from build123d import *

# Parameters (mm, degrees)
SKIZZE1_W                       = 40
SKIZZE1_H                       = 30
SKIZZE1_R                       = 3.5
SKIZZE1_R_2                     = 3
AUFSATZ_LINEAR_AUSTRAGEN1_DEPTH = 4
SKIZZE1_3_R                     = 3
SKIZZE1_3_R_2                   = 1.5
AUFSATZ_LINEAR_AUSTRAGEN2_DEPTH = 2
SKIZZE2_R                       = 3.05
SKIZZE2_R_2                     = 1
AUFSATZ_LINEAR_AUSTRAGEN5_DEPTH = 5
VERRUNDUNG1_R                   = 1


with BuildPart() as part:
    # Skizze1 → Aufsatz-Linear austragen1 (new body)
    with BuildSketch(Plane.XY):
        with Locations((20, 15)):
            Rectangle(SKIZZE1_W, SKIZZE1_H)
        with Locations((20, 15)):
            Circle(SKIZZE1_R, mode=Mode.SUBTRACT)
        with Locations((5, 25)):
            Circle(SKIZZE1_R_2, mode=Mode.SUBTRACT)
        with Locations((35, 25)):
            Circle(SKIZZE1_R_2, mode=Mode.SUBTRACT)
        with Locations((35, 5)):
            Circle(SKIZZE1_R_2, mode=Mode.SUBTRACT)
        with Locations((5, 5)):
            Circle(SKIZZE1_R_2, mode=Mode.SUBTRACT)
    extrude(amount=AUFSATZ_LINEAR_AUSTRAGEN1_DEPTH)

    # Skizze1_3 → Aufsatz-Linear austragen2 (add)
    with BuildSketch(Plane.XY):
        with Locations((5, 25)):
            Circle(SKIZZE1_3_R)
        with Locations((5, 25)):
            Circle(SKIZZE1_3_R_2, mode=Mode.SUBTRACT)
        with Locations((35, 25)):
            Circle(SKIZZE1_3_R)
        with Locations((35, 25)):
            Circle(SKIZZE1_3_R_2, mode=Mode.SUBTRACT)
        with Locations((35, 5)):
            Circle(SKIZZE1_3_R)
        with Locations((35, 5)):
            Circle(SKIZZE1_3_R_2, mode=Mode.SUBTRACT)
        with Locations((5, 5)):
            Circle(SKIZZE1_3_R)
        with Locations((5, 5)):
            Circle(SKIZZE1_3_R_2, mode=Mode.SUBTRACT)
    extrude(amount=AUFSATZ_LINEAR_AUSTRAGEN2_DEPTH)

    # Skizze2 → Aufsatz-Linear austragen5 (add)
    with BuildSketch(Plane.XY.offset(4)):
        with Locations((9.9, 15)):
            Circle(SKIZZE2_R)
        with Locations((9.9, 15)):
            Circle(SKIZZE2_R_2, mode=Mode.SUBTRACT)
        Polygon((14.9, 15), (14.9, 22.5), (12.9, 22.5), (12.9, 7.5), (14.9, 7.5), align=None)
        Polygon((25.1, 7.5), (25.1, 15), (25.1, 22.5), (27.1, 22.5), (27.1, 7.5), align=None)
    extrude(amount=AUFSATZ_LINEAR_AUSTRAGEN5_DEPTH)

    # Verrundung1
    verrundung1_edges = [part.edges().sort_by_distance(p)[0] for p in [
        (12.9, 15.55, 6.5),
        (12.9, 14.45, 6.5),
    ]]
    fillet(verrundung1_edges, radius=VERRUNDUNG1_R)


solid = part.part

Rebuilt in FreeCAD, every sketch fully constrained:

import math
import FreeCAD as App
import Part
import Sketcher


def edges_at(feature, points):
    """Names of the edges that pass closest to the given points."""
    edges = feature.Shape.Edges
    near = lambda p: min(range(len(edges)), key=lambda i: edges[i].distToShape(Part.Vertex(*p))[0])
    return sorted({f"Edge{near(p) + 1}" for p in points})

doc = App.newDocument("Part")
body = doc.addObject("PartDesign::Body", "Body")

# Sketch on XY plane
sketch1 = body.newObject("Sketcher::SketchObject", "Sketch")
sketch1.AttachmentSupport = (doc.getObject("XY_Plane"), [""])
sketch1.MapMode = "FlatFace"
sketch1.addGeometry(Part.LineSegment(App.Vector(0, 30, 0), App.Vector(0, 0, 0)), False)
sketch1.addGeometry(Part.LineSegment(App.Vector(0, 0, 0), App.Vector(40, 0, 0)), False)
sketch1.addGeometry(Part.LineSegment(App.Vector(40, 0, 0), App.Vector(40, 30, 0)), False)
sketch1.addGeometry(Part.LineSegment(App.Vector(40, 30, 0), App.Vector(0, 30, 0)), False)
sketch1.addGeometry(Part.Circle(App.Vector(5, 5, 0), App.Vector(0, 0, 1), 3), False)
sketch1.addGeometry(Part.Circle(App.Vector(35, 5, 0), App.Vector(0, 0, 1), 3), False)
sketch1.addGeometry(Part.Circle(App.Vector(5, 25, 0), App.Vector(0, 0, 1), 3), False)
sketch1.addGeometry(Part.Circle(App.Vector(20, 15, 0), App.Vector(0, 0, 1), 3.5), False)
sketch1.addGeometry(Part.Circle(App.Vector(35, 25, 0), App.Vector(0, 0, 1), 3), False)
sketch1.addConstraint(Sketcher.Constraint("Coincident", 0, 2, 1, 1))
sketch1.addConstraint(Sketcher.Constraint("Coincident", 1, 2, 2, 1))
sketch1.addConstraint(Sketcher.Constraint("Coincident", 2, 2, 3, 1))
sketch1.addConstraint(Sketcher.Constraint("Coincident", 3, 2, 0, 1))
sketch1.addConstraint(Sketcher.Constraint("Vertical", 0))
sketch1.addConstraint(Sketcher.Constraint("Horizontal", 1))
sketch1.addConstraint(Sketcher.Constraint("Vertical", 2))
sketch1.addConstraint(Sketcher.Constraint("Horizontal", 3))
sketch1.addConstraint(Sketcher.Constraint("Coincident", 0, 2, -1, 1))
sketch1.addConstraint(Sketcher.Constraint("Equal", 4, 5))
sketch1.addConstraint(Sketcher.Constraint("Equal", 5, 6))
sketch1.addConstraint(Sketcher.Constraint("Equal", 6, 8))
sketch1.addConstraint(Sketcher.Constraint("Horizontal", 4, 3, 5, 3))
sketch1.addConstraint(Sketcher.Constraint("Horizontal", 6, 3, 8, 3))
sketch1.addConstraint(Sketcher.Constraint("Vertical", 4, 3, 6, 3))
sketch1.addConstraint(Sketcher.Constraint("Vertical", 5, 3, 8, 3))
sketch1.addConstraint(Sketcher.Constraint("Diameter", 4, 6.0))
sketch1.addConstraint(Sketcher.Constraint("Diameter", 7, 7.0))
sketch1.addConstraint(Sketcher.Constraint("DistanceX", 1, 1, 1, 2, 40.0))
sketch1.addConstraint(Sketcher.Constraint("DistanceY", 0, 2, 0, 1, 30.0))
sketch1.addConstraint(Sketcher.Constraint("DistanceX", -1, 1, 4, 3, 5.0))
sketch1.addConstraint(Sketcher.Constraint("DistanceY", -1, 1, 4, 3, 5.0))
sketch1.addConstraint(Sketcher.Constraint("DistanceX", -1, 1, 5, 3, 35.0))
sketch1.addConstraint(Sketcher.Constraint("DistanceY", -1, 1, 6, 3, 25.0))
sketch1.addConstraint(Sketcher.Constraint("DistanceX", -1, 1, 7, 3, 20.0))
sketch1.addConstraint(Sketcher.Constraint("DistanceY", -1, 1, 7, 3, 15.0))
pad1 = body.newObject("PartDesign::Pad", "Pad")
pad1.Profile = sketch1
pad1.Length = 4

# Sketch on XY plane
sketch2 = body.newObject("Sketcher::SketchObject", "Sketch001")
sketch2.AttachmentSupport = (doc.getObject("XY_Plane"), [""])
sketch2.MapMode = "FlatFace"
sketch2.addGeometry(Part.Circle(App.Vector(5, 25, 0), App.Vector(0, 0, 1), 3), False)
sketch2.addGeometry(Part.Circle(App.Vector(5, 25, 0), App.Vector(0, 0, 1), 1.5), False)
sketch2.addGeometry(Part.Circle(App.Vector(35, 25, 0), App.Vector(0, 0, 1), 3), False)
sketch2.addGeometry(Part.Circle(App.Vector(35, 25, 0), App.Vector(0, 0, 1), 1.5), False)
sketch2.addGeometry(Part.Circle(App.Vector(35, 5, 0), App.Vector(0, 0, 1), 3), False)
sketch2.addGeometry(Part.Circle(App.Vector(35, 5, 0), App.Vector(0, 0, 1), 1.5), False)
sketch2.addGeometry(Part.Circle(App.Vector(5, 5, 0), App.Vector(0, 0, 1), 3), False)
sketch2.addGeometry(Part.Circle(App.Vector(5, 5, 0), App.Vector(0, 0, 1), 1.5), False)
sketch2.addConstraint(Sketcher.Constraint("Coincident", 1, 3, 0, 3))
sketch2.addConstraint(Sketcher.Constraint("Coincident", 3, 3, 2, 3))
sketch2.addConstraint(Sketcher.Constraint("Coincident", 5, 3, 4, 3))
sketch2.addConstraint(Sketcher.Constraint("Coincident", 7, 3, 6, 3))
sketch2.addConstraint(Sketcher.Constraint("Equal", 0, 2))
sketch2.addConstraint(Sketcher.Constraint("Equal", 1, 3))
sketch2.addConstraint(Sketcher.Constraint("Equal", 2, 4))
sketch2.addConstraint(Sketcher.Constraint("Equal", 3, 5))
sketch2.addConstraint(Sketcher.Constraint("Equal", 4, 6))
sketch2.addConstraint(Sketcher.Constraint("Equal", 5, 7))
sketch2.addConstraint(Sketcher.Constraint("Horizontal", 1, 3, 2, 3))
sketch2.addConstraint(Sketcher.Constraint("Horizontal", 5, 3, 6, 3))
sketch2.addConstraint(Sketcher.Constraint("Vertical", 3, 3, 4, 3))
sketch2.addConstraint(Sketcher.Constraint("Vertical", 1, 3, 6, 3))
sketch2.addConstraint(Sketcher.Constraint("Diameter", 0, 6.0))
sketch2.addConstraint(Sketcher.Constraint("Diameter", 1, 3.0))
sketch2.addConstraint(Sketcher.Constraint("DistanceX", -1, 1, 0, 3, 5.0))
sketch2.addConstraint(Sketcher.Constraint("DistanceY", -1, 1, 0, 3, 25.0))
sketch2.addConstraint(Sketcher.Constraint("DistanceX", -1, 1, 2, 3, 35.0))
sketch2.addConstraint(Sketcher.Constraint("DistanceY", -1, 1, 4, 3, 5.0))
pad2 = body.newObject("PartDesign::Pad", "Pad001")
pad2.Profile = sketch2
pad2.Length = 2

# Sketch on XY plane
sketch3 = body.newObject("Sketcher::SketchObject", "Sketch002")
sketch3.AttachmentSupport = (doc.getObject("XY_Plane"), [""])
sketch3.MapMode = "FlatFace"
sketch3.AttachmentOffset = App.Placement(App.Vector(0, 0, 4), App.Rotation())
sketch3.addGeometry(Part.LineSegment(App.Vector(14.9, 7.5, 0), App.Vector(14.9, 22.5, 0)), False)
sketch3.addGeometry(Part.LineSegment(App.Vector(14.9, 22.5, 0), App.Vector(12.9, 22.5, 0)), False)
sketch3.addGeometry(Part.LineSegment(App.Vector(12.9, 22.5, 0), App.Vector(12.9, 15.6, 0)), False)
sketch3.addGeometry(Part.ArcOfCircle(Part.Circle(App.Vector(9.9, 15, 0), App.Vector(0, 0, 1), 3), math.radians(10), math.radians(350)), False)
sketch3.addGeometry(Part.LineSegment(App.Vector(12.9, 14.4, 0), App.Vector(12.9, 7.5, 0)), False)
sketch3.addGeometry(Part.LineSegment(App.Vector(12.9, 7.5, 0), App.Vector(14.9, 7.5, 0)), False)
sketch3.addGeometry(Part.Circle(App.Vector(9.9, 15, 0), App.Vector(0, 0, 1), 1), False)
sketch3.addGeometry(Part.LineSegment(App.Vector(25.1, 22.5, 0), App.Vector(25.1, 7.5, 0)), False)
sketch3.addGeometry(Part.LineSegment(App.Vector(25.1, 7.5, 0), App.Vector(27.1, 7.5, 0)), False)
sketch3.addGeometry(Part.LineSegment(App.Vector(27.1, 7.5, 0), App.Vector(27.1, 22.5, 0)), False)
sketch3.addGeometry(Part.LineSegment(App.Vector(27.1, 22.5, 0), App.Vector(25.1, 22.5, 0)), False)
sketch3.addConstraint(Sketcher.Constraint("Coincident", 0, 2, 1, 1))
sketch3.addConstraint(Sketcher.Constraint("Coincident", 1, 2, 2, 1))
sketch3.addConstraint(Sketcher.Constraint("Coincident", 2, 2, 3, 1))
sketch3.addConstraint(Sketcher.Constraint("Coincident", 3, 2, 4, 1))
sketch3.addConstraint(Sketcher.Constraint("Coincident", 4, 2, 5, 1))
sketch3.addConstraint(Sketcher.Constraint("Coincident", 5, 2, 0, 1))
sketch3.addConstraint(Sketcher.Constraint("Coincident", 7, 2, 8, 1))
sketch3.addConstraint(Sketcher.Constraint("Coincident", 8, 2, 9, 1))
sketch3.addConstraint(Sketcher.Constraint("Coincident", 9, 2, 10, 1))
sketch3.addConstraint(Sketcher.Constraint("Coincident", 10, 2, 7, 1))
sketch3.addConstraint(Sketcher.Constraint("Vertical", 0))
sketch3.addConstraint(Sketcher.Constraint("Horizontal", 1))
sketch3.addConstraint(Sketcher.Constraint("Vertical", 2))
sketch3.addConstraint(Sketcher.Constraint("Vertical", 4))
sketch3.addConstraint(Sketcher.Constraint("Horizontal", 5))
sketch3.addConstraint(Sketcher.Constraint("Vertical", 7))
sketch3.addConstraint(Sketcher.Constraint("Horizontal", 8))
sketch3.addConstraint(Sketcher.Constraint("Vertical", 9))
sketch3.addConstraint(Sketcher.Constraint("Horizontal", 10))
sketch3.addConstraint(Sketcher.Constraint("Coincident", 6, 3, 3, 3))
sketch3.addConstraint(Sketcher.Constraint("Horizontal", 5, 2, 7, 2))
sketch3.addConstraint(Sketcher.Constraint("Horizontal", 1, 2, 9, 2))
sketch3.addConstraint(Sketcher.Constraint("Vertical", 2, 2, 3, 2))
sketch3.addConstraint(Sketcher.Constraint("Equal", 5, 8))
sketch3.addConstraint(Sketcher.Constraint("Equal", 2, 4))
sketch3.addConstraint(Sketcher.Constraint("Diameter", 6, 2.0))
sketch3.addConstraint(Sketcher.Constraint("DistanceX", 1, 2, 1, 1, 2.0))
sketch3.addConstraint(Sketcher.Constraint("DistanceY", 0, 1, 0, 2, 15.0))
sketch3.addConstraint(Sketcher.Constraint("Radius", 3, 3.05))
sketch3.addConstraint(Sketcher.Constraint("DistanceY", -1, 1, 3, 3, 15.0))
sketch3.addConstraint(Sketcher.Constraint("DistanceX", 3, 3, 0, 2, 5.0))
sketch3.addConstraint(Sketcher.Constraint("DistanceX", -1, 1, 3, 3, 9.9))
sketch3.addConstraint(Sketcher.Constraint("DistanceX", -1, 1, 7, 2, 25.1))
pad3 = body.newObject("PartDesign::Pad", "Pad002")
pad3.Profile = sketch3
pad3.Length = 5
doc.recompute()

fillet = body.newObject("PartDesign::Fillet", "Fillet")
fillet.Base = (pad3, edges_at(pad3, [(12.9, 15.55, 6.5), (12.9, 14.45, 6.5)]))
fillet.Radius = 1

doc.recompute()
